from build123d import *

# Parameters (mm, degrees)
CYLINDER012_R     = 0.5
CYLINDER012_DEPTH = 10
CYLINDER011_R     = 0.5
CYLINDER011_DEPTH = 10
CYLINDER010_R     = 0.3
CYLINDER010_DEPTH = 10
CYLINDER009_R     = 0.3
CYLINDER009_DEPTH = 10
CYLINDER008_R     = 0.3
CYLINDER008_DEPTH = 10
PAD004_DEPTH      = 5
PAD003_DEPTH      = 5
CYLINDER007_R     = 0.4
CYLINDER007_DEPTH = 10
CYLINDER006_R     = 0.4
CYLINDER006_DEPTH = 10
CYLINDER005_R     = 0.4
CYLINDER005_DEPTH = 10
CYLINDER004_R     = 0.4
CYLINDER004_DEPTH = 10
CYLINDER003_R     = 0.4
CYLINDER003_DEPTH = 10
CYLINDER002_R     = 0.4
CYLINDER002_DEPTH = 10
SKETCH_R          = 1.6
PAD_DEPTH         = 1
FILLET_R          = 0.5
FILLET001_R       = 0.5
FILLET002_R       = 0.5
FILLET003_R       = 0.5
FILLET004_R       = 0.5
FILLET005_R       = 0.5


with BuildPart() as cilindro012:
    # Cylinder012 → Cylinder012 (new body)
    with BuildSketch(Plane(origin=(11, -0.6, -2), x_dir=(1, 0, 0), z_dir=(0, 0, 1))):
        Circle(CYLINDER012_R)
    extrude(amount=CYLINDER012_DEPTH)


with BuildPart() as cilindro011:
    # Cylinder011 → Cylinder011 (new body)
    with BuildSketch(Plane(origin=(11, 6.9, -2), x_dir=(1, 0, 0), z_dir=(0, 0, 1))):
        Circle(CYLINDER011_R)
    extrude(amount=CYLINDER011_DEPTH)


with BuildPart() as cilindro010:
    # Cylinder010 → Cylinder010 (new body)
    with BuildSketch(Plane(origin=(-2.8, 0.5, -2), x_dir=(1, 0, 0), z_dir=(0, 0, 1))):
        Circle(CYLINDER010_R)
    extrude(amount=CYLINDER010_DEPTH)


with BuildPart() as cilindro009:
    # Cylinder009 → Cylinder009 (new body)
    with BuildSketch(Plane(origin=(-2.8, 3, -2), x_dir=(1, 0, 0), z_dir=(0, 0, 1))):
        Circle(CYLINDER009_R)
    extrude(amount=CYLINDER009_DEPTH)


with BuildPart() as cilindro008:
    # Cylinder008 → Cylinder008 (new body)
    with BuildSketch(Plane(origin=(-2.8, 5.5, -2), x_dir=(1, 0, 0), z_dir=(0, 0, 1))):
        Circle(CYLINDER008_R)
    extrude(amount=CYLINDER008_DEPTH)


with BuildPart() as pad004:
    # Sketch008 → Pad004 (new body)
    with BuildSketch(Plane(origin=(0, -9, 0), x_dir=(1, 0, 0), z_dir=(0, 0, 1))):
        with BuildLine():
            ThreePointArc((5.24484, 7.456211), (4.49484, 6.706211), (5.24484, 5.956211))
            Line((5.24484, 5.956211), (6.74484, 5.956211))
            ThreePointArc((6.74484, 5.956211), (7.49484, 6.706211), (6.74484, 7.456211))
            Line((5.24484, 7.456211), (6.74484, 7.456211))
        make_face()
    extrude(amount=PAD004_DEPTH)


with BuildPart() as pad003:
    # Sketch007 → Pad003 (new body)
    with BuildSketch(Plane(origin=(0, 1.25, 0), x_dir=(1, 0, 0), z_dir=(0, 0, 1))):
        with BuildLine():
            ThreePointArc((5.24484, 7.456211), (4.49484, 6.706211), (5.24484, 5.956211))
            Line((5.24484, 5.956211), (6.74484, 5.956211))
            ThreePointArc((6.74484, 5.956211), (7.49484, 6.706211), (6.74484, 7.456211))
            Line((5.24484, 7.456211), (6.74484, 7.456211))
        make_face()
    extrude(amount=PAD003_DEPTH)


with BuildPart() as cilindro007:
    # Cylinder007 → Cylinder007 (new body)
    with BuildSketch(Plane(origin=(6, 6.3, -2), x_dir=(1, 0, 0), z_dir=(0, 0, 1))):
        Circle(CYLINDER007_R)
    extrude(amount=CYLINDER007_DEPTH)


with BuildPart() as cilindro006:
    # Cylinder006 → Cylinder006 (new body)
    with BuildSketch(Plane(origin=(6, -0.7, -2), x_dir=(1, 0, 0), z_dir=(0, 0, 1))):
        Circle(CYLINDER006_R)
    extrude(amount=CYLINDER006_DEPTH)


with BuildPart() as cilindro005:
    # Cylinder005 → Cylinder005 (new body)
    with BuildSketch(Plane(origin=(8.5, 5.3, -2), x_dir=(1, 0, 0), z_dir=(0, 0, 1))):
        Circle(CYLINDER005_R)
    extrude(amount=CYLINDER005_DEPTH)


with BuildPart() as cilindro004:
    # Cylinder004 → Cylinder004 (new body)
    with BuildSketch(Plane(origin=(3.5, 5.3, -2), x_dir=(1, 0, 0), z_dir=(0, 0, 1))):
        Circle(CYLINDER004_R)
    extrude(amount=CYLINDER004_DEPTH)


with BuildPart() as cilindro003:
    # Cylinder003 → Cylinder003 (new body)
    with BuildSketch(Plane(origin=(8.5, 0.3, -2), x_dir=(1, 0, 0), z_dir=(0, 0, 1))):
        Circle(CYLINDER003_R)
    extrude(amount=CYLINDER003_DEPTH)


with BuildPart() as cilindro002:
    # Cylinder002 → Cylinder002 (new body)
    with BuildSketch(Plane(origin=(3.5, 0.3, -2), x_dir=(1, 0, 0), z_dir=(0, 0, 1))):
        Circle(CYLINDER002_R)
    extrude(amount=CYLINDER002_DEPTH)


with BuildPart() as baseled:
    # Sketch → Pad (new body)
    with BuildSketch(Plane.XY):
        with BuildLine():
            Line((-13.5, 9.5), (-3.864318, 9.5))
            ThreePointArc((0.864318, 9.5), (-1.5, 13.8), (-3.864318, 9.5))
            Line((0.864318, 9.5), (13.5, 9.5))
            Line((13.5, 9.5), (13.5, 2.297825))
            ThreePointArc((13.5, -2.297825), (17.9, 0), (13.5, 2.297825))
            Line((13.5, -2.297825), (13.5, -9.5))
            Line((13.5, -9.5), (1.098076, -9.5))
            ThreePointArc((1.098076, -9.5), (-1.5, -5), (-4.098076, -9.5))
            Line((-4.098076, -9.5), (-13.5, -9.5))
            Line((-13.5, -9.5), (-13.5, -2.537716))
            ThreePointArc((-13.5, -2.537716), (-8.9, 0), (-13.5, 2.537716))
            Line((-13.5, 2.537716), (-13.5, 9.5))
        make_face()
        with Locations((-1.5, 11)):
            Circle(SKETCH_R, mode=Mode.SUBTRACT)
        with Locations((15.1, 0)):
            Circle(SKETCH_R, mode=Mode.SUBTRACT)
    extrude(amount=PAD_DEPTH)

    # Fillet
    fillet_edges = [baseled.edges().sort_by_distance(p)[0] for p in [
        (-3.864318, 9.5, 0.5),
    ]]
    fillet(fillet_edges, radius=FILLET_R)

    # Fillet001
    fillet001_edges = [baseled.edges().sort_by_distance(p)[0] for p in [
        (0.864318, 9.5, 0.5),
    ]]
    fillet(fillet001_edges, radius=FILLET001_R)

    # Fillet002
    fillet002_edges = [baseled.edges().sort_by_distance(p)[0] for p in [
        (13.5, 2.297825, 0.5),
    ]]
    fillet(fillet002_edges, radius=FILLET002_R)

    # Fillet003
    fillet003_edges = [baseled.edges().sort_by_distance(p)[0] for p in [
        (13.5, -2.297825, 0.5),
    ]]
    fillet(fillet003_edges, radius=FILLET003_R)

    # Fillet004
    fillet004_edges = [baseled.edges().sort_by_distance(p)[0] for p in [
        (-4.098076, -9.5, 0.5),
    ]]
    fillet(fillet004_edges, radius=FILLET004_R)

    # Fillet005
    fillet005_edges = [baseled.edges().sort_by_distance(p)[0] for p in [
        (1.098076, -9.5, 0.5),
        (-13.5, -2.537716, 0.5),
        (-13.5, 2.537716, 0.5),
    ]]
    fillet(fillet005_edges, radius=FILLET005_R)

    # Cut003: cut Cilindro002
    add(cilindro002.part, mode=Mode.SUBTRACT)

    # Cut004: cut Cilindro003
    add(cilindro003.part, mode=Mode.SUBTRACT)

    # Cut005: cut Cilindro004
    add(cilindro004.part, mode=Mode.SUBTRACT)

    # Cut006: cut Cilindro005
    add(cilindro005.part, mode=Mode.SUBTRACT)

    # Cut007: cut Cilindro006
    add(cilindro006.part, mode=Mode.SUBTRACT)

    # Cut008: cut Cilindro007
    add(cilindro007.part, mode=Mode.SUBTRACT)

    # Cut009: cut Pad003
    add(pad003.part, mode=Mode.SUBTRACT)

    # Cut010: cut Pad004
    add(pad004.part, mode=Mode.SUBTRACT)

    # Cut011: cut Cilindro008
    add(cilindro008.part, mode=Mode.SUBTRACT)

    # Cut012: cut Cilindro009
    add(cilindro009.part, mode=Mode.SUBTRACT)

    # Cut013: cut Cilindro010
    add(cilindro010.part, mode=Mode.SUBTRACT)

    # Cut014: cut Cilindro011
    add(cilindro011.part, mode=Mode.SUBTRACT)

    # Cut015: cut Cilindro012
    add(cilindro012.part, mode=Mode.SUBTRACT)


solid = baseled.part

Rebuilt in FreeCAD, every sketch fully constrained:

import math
import FreeCAD as App
import Part
import Sketcher


def edges_at(feature, points):
    """Names of the edges that pass closest to the given points."""
    edges = feature.Shape.Edges
    near = lambda p: min(range(len(edges)), key=lambda i: edges[i].distToShape(Part.Vertex(*p))[0])
    return sorted({f"Edge{near(p) + 1}" for p in points})

doc = App.newDocument("Part")
body = doc.addObject("PartDesign::Body", "Body")

sketch1 = body.newObject("Sketcher::SketchObject", "Sketch")
sketch1.AttachmentSupport = (doc.getObject("XY_Plane"), [""])
sketch1.MapMode = "FlatFace"
sketch1.AttachmentOffset = App.Placement(App.Vector(0, 0, -2), App.Rotation())
sketch1.addGeometry(Part.Circle(App.Vector(11, -0.6, 0), App.Vector(0, 0, 1), 0.5), False)
sketch1.addConstraint([
    Sketcher.Constraint("Diameter", 0, 1.0),
    Sketcher.Constraint("DistanceX", -1, 1, 0, 3, 11.0),
    Sketcher.Constraint("DistanceY", 0, 3, -1, 1, 0.6),
])
pad1 = body.newObject("PartDesign::Pad", "Pad")
pad1.Profile = sketch1
pad1.Length = 10
body2 = doc.addObject("PartDesign::Body", "Body001")

sketch2 = body2.newObject("Sketcher::SketchObject", "Sketch001")
sketch2.AttachmentSupport = (doc.getObject("XY_Plane001"), [""])
sketch2.MapMode = "FlatFace"
sketch2.AttachmentOffset = App.Placement(App.Vector(0, 0, -2), App.Rotation())
sketch2.addGeometry(Part.Circle(App.Vector(11, 6.9, 0), App.Vector(0, 0, 1), 0.5), False)
sketch2.addConstraint([
    Sketcher.Constraint("Diameter", 0, 1.0),
    Sketcher.Constraint("DistanceX", -1, 1, 0, 3, 11.0),
    Sketcher.Constraint("DistanceY", -1, 1, 0, 3, 6.9),
])
pad2 = body2.newObject("PartDesign::Pad", "Pad001")
pad2.Profile = sketch2
pad2.Length = 10
body3 = doc.addObject("PartDesign::Body", "Body002")

sketch3 = body3.newObject("Sketcher::SketchObject", "Sketch002")
sketch3.AttachmentSupport = (doc.getObject("XY_Plane002"), [""])
sketch3.MapMode = "FlatFace"
sketch3.AttachmentOffset = App.Placement(App.Vector(0, 0, -2), App.Rotation())
sketch3.addGeometry(Part.Circle(App.Vector(-2.8, 0.5, 0), App.Vector(0, 0, 1), 0.3), False)
sketch3.addConstraint([
    Sketcher.Constraint("Diameter", 0, 0.6),
    Sketcher.Constraint("DistanceX", 0, 3, -1, 1, 2.8),
    Sketcher.Constraint("DistanceY", -1, 1, 0, 3, 0.5),
])
pad3 = body3.newObject("PartDesign::Pad", "Pad002")
pad3.Profile = sketch3
pad3.Length = 10
body4 = doc.addObject("PartDesign::Body", "Body003")

sketch4 = body4.newObject("Sketcher::SketchObject", "Sketch003")
sketch4.AttachmentSupport = (doc.getObject("XY_Plane003"), [""])
sketch4.MapMode = "FlatFace"
sketch4.AttachmentOffset = App.Placement(App.Vector(0, 0, -2), App.Rotation())
sketch4.addGeometry(Part.Circle(App.Vector(-2.8, 3, 0), App.Vector(0, 0, 1), 0.3), False)
sketch4.addConstraint([
    Sketcher.Constraint("Diameter", 0, 0.6),
    Sketcher.Constraint("DistanceY", -1, 1, 0, 3, 3.0),
    Sketcher.Constraint("DistanceX", 0, 3, -1, 1, 2.8),
])
pad4 = body4.newObject("PartDesign::Pad", "Pad003")
pad4.Profile = sketch4
pad4.Length = 10
body5 = doc.addObject("PartDesign::Body", "Body004")

sketch5 = body5.newObject("Sketcher::SketchObject", "Sketch004")
sketch5.AttachmentSupport = (doc.getObject("XY_Plane004"), [""])
sketch5.MapMode = "FlatFace"
sketch5.AttachmentOffset = App.Placement(App.Vector(0, 0, -2), App.Rotation())
sketch5.addGeometry(Part.Circle(App.Vector(-2.8, 5.5, 0), App.Vector(0, 0, 1), 0.3), False)
sketch5.addConstraint([
    Sketcher.Constraint("Diameter", 0, 0.6),
    Sketcher.Constraint("DistanceX", 0, 3, -1, 1, 2.8),
    Sketcher.Constraint("DistanceY", -1, 1, 0, 3, 5.5),
])
pad5 = body5.newObject("PartDesign::Pad", "Pad004")
pad5.Profile = sketch5
pad5.Length = 10
body6 = doc.addObject("PartDesign::Body", "Body005")

sketch6 = body6.newObject("Sketcher::SketchObject", "Sketch005")
sketch6.AttachmentSupport = (doc.getObject("XY_Plane005"), [""])
sketch6.MapMode = "FlatFace"
sketch6.addGeometry([
    Part.ArcOfCircle(Part.Circle(App.Vector(5.2, -2.3, 0), App.Vector(0, 0, 1), 0.8), math.radians(90), math.radians(270)),
    Part.LineSegment(App.Vector(5.2, -3, 0), App.Vector(6.7, -3, 0)),
    Part.ArcOfCircle(Part.Circle(App.Vector(6.7, -2.3, 0), App.Vector(0, 0, 1), 0.8), math.radians(-90), math.radians(90)),
    Part.LineSegment(App.Vector(6.7, -1.5, 0), App.Vector(5.2, -1.5, 0)),
], False)
sketch6.addConstraint([
    Sketcher.Constraint("Tangent", 0, 2, 1, 1),
    Sketcher.Constraint("Tangent", 1, 2, 2, 1),
    Sketcher.Constraint("Tangent", 2, 2, 3, 1),
    Sketcher.Constraint("Tangent", 3, 2, 0, 1),
    Sketcher.Constraint("Horizontal", 1),
    Sketcher.Constraint("Horizontal", 3),
    Sketcher.Constraint("Radius", 0, 0.75),
    Sketcher.Constraint("DistanceX", 1, 1, 1, 2, 1.5),
    Sketcher.Constraint("DistanceX", -1, 1, 0, 3, 5.24484),
    Sketcher.Constraint("DistanceY", 0, 3, -1, 1, 2.293789),
])
pad6 = body6.newObject("PartDesign::Pad", "Pad005")
pad6.Profile = sketch6
pad6.Length = 5
body7 = doc.addObject("PartDesign::Body", "Body006")

sketch7 = body7.newObject("Sketcher::SketchObject", "Sketch006")
sketch7.AttachmentSupport = (doc.getObject("XY_Plane006"), [""])
sketch7.MapMode = "FlatFace"
sketch7.addGeometry([
    Part.ArcOfCircle(Part.Circle(App.Vector(5.2, 8, 0), App.Vector(0, 0, 1), 0.8), math.radians(90), math.radians(270)),
    Part.LineSegment(App.Vector(5.2, 7.2, 0), App.Vector(6.7, 7.2, 0)),
    Part.ArcOfCircle(Part.Circle(App.Vector(6.7, 8, 0), App.Vector(0, 0, 1), 0.8), math.radians(-90), math.radians(90)),
    Part.LineSegment(App.Vector(6.7, 8.7, 0), App.Vector(5.2, 8.7, 0)),
], False)
sketch7.addConstraint([
    Sketcher.Constraint("Tangent", 0, 2, 1, 1),
    Sketcher.Constraint("Tangent", 1, 2, 2, 1),
    Sketcher.Constraint("Tangent", 2, 2, 3, 1),
    Sketcher.Constraint("Tangent", 3, 2, 0, 1),
    Sketcher.Constraint("Horizontal", 1),
    Sketcher.Constraint("Horizontal", 3),
    Sketcher.Constraint("Radius", 0, 0.75),
    Sketcher.Constraint("DistanceX", 1, 1, 1, 2, 1.5),
    Sketcher.Constraint("DistanceX", -1, 1, 0, 3, 5.24484),
    Sketcher.Constraint("DistanceY", -1, 1, 0, 3, 7.956211),
])
pad7 = body7.newObject("PartDesign::Pad", "Pad006")
pad7.Profile = sketch7
pad7.Length = 5
body8 = doc.addObject("PartDesign::Body", "Body007")

sketch8 = body8.newObject("Sketcher::SketchObject", "Sketch007")
sketch8.AttachmentSupport = (doc.getObject("XY_Plane007"), [""])
sketch8.MapMode = "FlatFace"
sketch8.AttachmentOffset = App.Placement(App.Vector(0, 0, -2), App.Rotation())
sketch8.addGeometry(Part.Circle(App.Vector(6, 6.3, 0), App.Vector(0, 0, 1), 0.4), False)
sketch8.addConstraint([
    Sketcher.Constraint("Diameter", 0, 0.8),
    Sketcher.Constraint("DistanceX", -1, 1, 0, 3, 6.0),
    Sketcher.Constraint("DistanceY", -1, 1, 0, 3, 6.3),
])
pad8 = body8.newObject("PartDesign::Pad", "Pad007")
pad8.Profile = sketch8
pad8.Length = 10
body9 = doc.addObject("PartDesign::Body", "Body008")

sketch9 = body9.newObject("Sketcher::SketchObject", "Sketch008")
sketch9.AttachmentSupport = (doc.getObject("XY_Plane008"), [""])
sketch9.MapMode = "FlatFace"
sketch9.AttachmentOffset = App.Placement(App.Vector(0, 0, -2), App.Rotation())
sketch9.addGeometry(Part.Circle(App.Vector(6, -0.7, 0), App.Vector(0, 0, 1), 0.4), False)
sketch9.addConstraint([
    Sketcher.Constraint("Diameter", 0, 0.8),
    Sketcher.Constraint("DistanceX", -1, 1, 0, 3, 6.0),
    Sketcher.Constraint("DistanceY", 0, 3, -1, 1, 0.7),
])
pad9 = body9.newObject("PartDesign::Pad", "Pad008")
pad9.Profile = sketch9
pad9.Length = 10
body10 = doc.addObject("PartDesign::Body", "Body009")

sketch10 = body10.newObject("Sketcher::SketchObject", "Sketch009")
sketch10.AttachmentSupport = (doc.getObject("XY_Plane009"), [""])
sketch10.MapMode = "FlatFace"
sketch10.AttachmentOffset = App.Placement(App.Vector(0, 0, -2), App.Rotation())
sketch10.addGeometry(Part.Circle(App.Vector(8.5, 5.3, 0), App.Vector(0, 0, 1), 0.4), False)
sketch10.addConstraint([
    Sketcher.Constraint("Diameter", 0, 0.8),
    Sketcher.Constraint("DistanceX", -1, 1, 0, 3, 8.5),
    Sketcher.Constraint("DistanceY", -1, 1, 0, 3, 5.3),
])
pad10 = body10.newObject("PartDesign::Pad", "Pad009")
pad10.Profile = sketch10
pad10.Length = 10
body11 = doc.addObject("PartDesign::Body", "Body010")

sketch11 = body11.newObject("Sketcher::SketchObject", "Sketch010")
sketch11.AttachmentSupport = (doc.getObject("XY_Plane010"), [""])
sketch11.MapMode = "FlatFace"
sketch11.AttachmentOffset = App.Placement(App.Vector(0, 0, -2), App.Rotation())
sketch11.addGeometry(Part.Circle(App.Vector(3.5, 5.3, 0), App.Vector(0, 0, 1), 0.4), False)
sketch11.addConstraint([
    Sketcher.Constraint("Diameter", 0, 0.8),
    Sketcher.Constraint("DistanceX", -1, 1, 0, 3, 3.5),
    Sketcher.Constraint("DistanceY", -1, 1, 0, 3, 5.3),
])
pad11 = body11.newObject("PartDesign::Pad", "Pad010")
pad11.Profile = sketch11
pad11.Length = 10
body12 = doc.addObject("PartDesign::Body", "Body011")

sketch12 = body12.newObject("Sketcher::SketchObject", "Sketch011")
sketch12.AttachmentSupport = (doc.getObject("XY_Plane011"), [""])
sketch12.MapMode = "FlatFace"
sketch12.AttachmentOffset = App.Placement(App.Vector(0, 0, -2), App.Rotation())
sketch12.addGeometry(Part.Circle(App.Vector(8.5, 0.3, 0), App.Vector(0, 0, 1), 0.4), False)
sketch12.addConstraint([
    Sketcher.Constraint("Diameter", 0, 0.8),
    Sketcher.Constraint("DistanceX", -1, 1, 0, 3, 8.5),
    Sketcher.Constraint("DistanceY", -1, 1, 0, 3, 0.3),
])
pad12 = body12.newObject("PartDesign::Pad", "Pad011")
pad12.Profile = sketch12
pad12.Length = 10
body13 = doc.addObject("PartDesign::Body", "Body012")

sketch13 = body13.newObject("Sketcher::SketchObject", "Sketch012")
sketch13.AttachmentSupport = (doc.getObject("XY_Plane012"), [""])
sketch13.MapMode = "FlatFace"
sketch13.AttachmentOffset = App.Placement(App.Vector(0, 0, -2), App.Rotation())
sketch13.addGeometry(Part.Circle(App.Vector(3.5, 0.3, 0), App.Vector(0, 0, 1), 0.4), False)
sketch13.addConstraint([
    Sketcher.Constraint("Diameter", 0, 0.8),
    Sketcher.Constraint("DistanceX", -1, 1, 0, 3, 3.5),
    Sketcher.Constraint("DistanceY", -1, 1, 0, 3, 0.3),
])
pad13 = body13.newObject("PartDesign::Pad", "Pad012")
pad13.Profile = sketch13
pad13.Length = 10
body14 = doc.addObject("PartDesign::Body", "Body013")

sketch14 = body14.newObject("Sketcher::SketchObject", "Sketch013")
sketch14.AttachmentSupport = (doc.getObject("XY_Plane013"), [""])
sketch14.MapMode = "FlatFace"
sketch14.addGeometry([
    Part.LineSegment(App.Vector(-3.9, 9.5, 0), App.Vector(-13.5, 9.5, 0)),
    Part.LineSegment(App.Vector(-13.5, 9.5, 0), App.Vector(-13.5, 2.5, 0)),
    Part.ArcOfCircle(Part.Circle(App.Vector(-11.9, 0, 0), App.Vector(0, 0, 1), 3), math.radians(-122), math.radians(122)),
    Part.LineSegment(App.Vector(-13.5, -2.5, 0), App.Vector(-13.5, -9.5, 0)),
    Part.LineSegment(App.Vector(-13.5, -9.5, 0), App.Vector(-4.1, -9.5, 0)),
    Part.ArcOfCircle(Part.Circle(App.Vector(-1.5, -8, 0), App.Vector(0, 0, 1), 3), math.radians(-30), math.radians(210)),
    Part.LineSegment(App.Vector(1.1, -9.5, 0), App.Vector(13.5, -9.5, 0)),
    Part.LineSegment(App.Vector(13.5, -9.5, 0), App.Vector(13.5, -2.3, 0)),
    Part.ArcOfCircle(Part.Circle(App.Vector(15.1, 0, 0), App.Vector(0, 0, 1), 2.8), math.radians(-125), math.radians(125)),
    Part.LineSegment(App.Vector(13.5, 2.3, 0), App.Vector(13.5, 9.5, 0)),
    Part.LineSegment(App.Vector(13.5, 9.5, 0), App.Vector(0.9, 9.5, 0)),
    Part.ArcOfCircle(Part.Circle(App.Vector(-1.5, 11, 0), App.Vector(0, 0, 1), 2.8), math.radians(-32), math.radians(212)),
    Part.Circle(App.Vector(15.1, 0, 0), App.Vector(0, 0, 1), 1.6),
    Part.Circle(App.Vector(-1.5, 11, 0), App.Vector(0, 0, 1), 1.6),
], False)
sketch14.addConstraint([
    Sketcher.Constraint("Coincident", 0, 2, 1, 1),
    Sketcher.Constraint("Coincident", 1, 2, 2, 2),
    Sketcher.Constraint("Coincident", 2, 1, 3, 1),
    Sketcher.Constraint("Coincident", 3, 2, 4, 1),
    Sketcher.Constraint("Coincident", 4, 2, 5, 2),
    Sketcher.Constraint("Coincident", 5, 1, 6, 1),
    Sketcher.Constraint("Coincident", 6, 2, 7, 1),
    Sketcher.Constraint("Coincident", 7, 2, 8, 1),
    Sketcher.Constraint("Coincident", 8, 2, 9, 1),
    Sketcher.Constraint("Coincident", 9, 2, 10, 1),
    Sketcher.Constraint("Coincident", 10, 2, 11, 1),
    Sketcher.Constraint("Coincident", 11, 2, 0, 1),
    Sketcher.Constraint("Horizontal", 0),
    Sketcher.Constraint("Vertical", 1),
    Sketcher.Constraint("Vertical", 3),
    Sketcher.Constraint("Horizontal", 4),
    Sketcher.Constraint("Horizontal", 6),
    Sketcher.Constraint("Vertical", 7),
    Sketcher.Constraint("Vertical", 9),
    Sketcher.Constraint("Horizontal", 10),
    Sketcher.Constraint("Coincident", 12, 3, 8, 3),
    Sketcher.Constraint("Coincident", 13, 3, 11, 3),
    Sketcher.Constraint("Equal", 2, 5),
    Sketcher.Constraint("Equal", 8, 11),
    Sketcher.Constraint("Equal", 12, 13),
    Sketcher.Constraint("Symmetric", 0, 2, 6, 2, -1, 1),
    Sketcher.Constraint("Symmetric", 3, 2, 9, 2, -1, 1),
    Sketcher.Constraint("Symmetric", 3, 2, 6, 2, -2),
    Sketcher.Constraint("PointOnObject", 2, 3, -1),
    Sketcher.Constraint("PointOnObject", 8, 3, -1),
    Sketcher.Constraint("Vertical", 5, 3, 11, 3),
    Sketcher.Constraint("Radius", 2, 3.0),
    Sketcher.Constraint("Diameter", 12, 3.2),
    Sketcher.Constraint("Radius", 8, 2.8),
    Sketcher.Constraint("DistanceY", 5, 3, -1, 1, 8.0),
    Sketcher.Constraint("DistanceY", -1, 1, 11, 3, 11.0),
    Sketcher.Constraint("DistanceX", 2, 3, 8, 3, 27.0),
    Sketcher.Constraint("DistanceX", 0, 2, 13, 3, 12.0),
    Sketcher.Constraint("DistanceY", 3, 2, 0, 2, 19.0),
    Sketcher.Constraint("DistanceX", 5, 3, 6, 2, 15.0),
    Sketcher.Constraint("DistanceX", 2, 3, -1, 1, 11.9),
])
pad14 = body14.newObject("PartDesign::Pad", "Pad013")
pad14.Profile = sketch14
pad14.Length = 1
doc.recompute()

fillet = body14.newObject("PartDesign::Fillet", "Fillet")
fillet.Base = (pad14, edges_at(pad14, [(-3.864, 9.5, 0.5)]))
fillet.Radius = 0.5
doc.recompute()

fillet2 = body14.newObject("PartDesign::Fillet", "Fillet001")
fillet2.Base = (fillet, edges_at(fillet, [(0.864, 9.5, 0.5)]))
fillet2.Radius = 0.5
doc.recompute()

fillet3 = body14.newObject("PartDesign::Fillet", "Fillet002")
fillet3.Base = (fillet2, edges_at(fillet2, [(13.5, 2.298, 0.5)]))
fillet3.Radius = 0.5
doc.recompute()

fillet4 = body14.newObject("PartDesign::Fillet", "Fillet003")
fillet4.Base = (fillet3, edges_at(fillet3, [(13.5, -2.298, 0.5)]))
fillet4.Radius = 0.5
doc.recompute()

fillet5 = body14.newObject("PartDesign::Fillet", "Fillet004")
fillet5.Base = (fillet4, edges_at(fillet4, [(-4.098, -9.5, 0.5)]))
fillet5.Radius = 0.5
doc.recompute()

fillet6 = body14.newObject("PartDesign::Fillet", "Fillet005")
fillet6.Base = (fillet5, edges_at(fillet5, [(1.098, -9.5, 0.5), (-13.5, -2.538, 0.5), (-13.5, 2.538, 0.5)]))
fillet6.Radius = 0.5
doc.recompute()

boolean = body14.newObject("PartDesign::Boolean", "Boolean")
boolean.Type = "Cut"
boolean.addObjects([body13])
doc.recompute()

boolean2 = body14.newObject("PartDesign::Boolean", "Boolean001")
boolean2.Type = "Cut"
boolean2.addObjects([body12])
doc.recompute()

boolean3 = body14.newObject("PartDesign::Boolean", "Boolean002")
boolean3.Type = "Cut"
boolean3.addObjects([body11])
doc.recompute()

boolean4 = body14.newObject("PartDesign::Boolean", "Boolean003")
boolean4.Type = "Cut"
boolean4.addObjects([body10])
doc.recompute()

boolean5 = body14.newObject("PartDesign::Boolean", "Boolean004")
boolean5.Type = "Cut"
boolean5.addObjects([body9])
doc.recompute()

boolean6 = body14.newObject("PartDesign::Boolean", "Boolean005")
boolean6.Type = "Cut"
boolean6.addObjects([body8])
doc.recompute()

boolean7 = body14.newObject("PartDesign::Boolean", "Boolean006")
boolean7.Type = "Cut"
boolean7.addObjects([body7])
doc.recompute()

boolean8 = body14.newObject("PartDesign::Boolean", "Boolean007")
boolean8.Type = "Cut"
boolean8.addObjects([body6])
doc.recompute()

boolean9 = body14.newObject("PartDesign::Boolean", "Boolean008")
boolean9.Type = "Cut"
boolean9.addObjects([body5])
doc.recompute()

boolean10 = body14.newObject("PartDesign::Boolean", "Boolean009")
boolean10.Type = "Cut"
boolean10.addObjects([body4])
doc.recompute()

boolean11 = body14.newObject("PartDesign::Boolean", "Boolean010")
boolean11.Type = "Cut"
boolean11.addObjects([body3])
doc.recompute()

boolean12 = body14.newObject("PartDesign::Boolean", "Boolean011")
boolean12.Type = "Cut"
boolean12.addObjects([body2])
doc.recompute()

boolean13 = body14.newObject("PartDesign::Boolean", "Boolean012")
boolean13.Type = "Cut"
boolean13.addObjects([body])

doc.recompute()
